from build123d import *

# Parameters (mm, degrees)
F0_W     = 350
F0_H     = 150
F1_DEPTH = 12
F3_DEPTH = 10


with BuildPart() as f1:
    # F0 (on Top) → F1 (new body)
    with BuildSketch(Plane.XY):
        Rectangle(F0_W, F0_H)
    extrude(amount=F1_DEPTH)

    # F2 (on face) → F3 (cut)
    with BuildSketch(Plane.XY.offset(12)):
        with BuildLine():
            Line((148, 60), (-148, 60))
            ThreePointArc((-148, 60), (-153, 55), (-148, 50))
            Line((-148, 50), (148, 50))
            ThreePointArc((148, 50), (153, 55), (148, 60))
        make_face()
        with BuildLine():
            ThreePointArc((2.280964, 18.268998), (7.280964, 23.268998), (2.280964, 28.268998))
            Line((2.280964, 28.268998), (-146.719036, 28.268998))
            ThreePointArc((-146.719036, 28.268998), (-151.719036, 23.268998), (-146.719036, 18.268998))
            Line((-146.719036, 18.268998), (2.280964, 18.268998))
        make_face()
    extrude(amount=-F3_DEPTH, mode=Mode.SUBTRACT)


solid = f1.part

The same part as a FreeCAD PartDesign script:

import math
import FreeCAD as App
import Part
import Sketcher
from FreeCAD import Vector

doc = App.newDocument("Part")
body = doc.addObject("PartDesign::Body", "Body")

sketch1 = doc.addObject("Sketcher::SketchObject", "Sketch")
body.addObject(sketch1)
sketch1.AttachmentSupport = (doc.XY_Plane, [""])
sketch1.MapMode = "FlatFace"
sketch1.addGeometry(Part.LineSegment(Vector(-175, 75, 0), Vector(-175, -75, 0)), False)
sketch1.addGeometry(Part.LineSegment(Vector(-175, -75, 0), Vector(175, -75, 0)), False)
sketch1.addGeometry(Part.LineSegment(Vector(175, -75, 0), Vector(175, 75, 0)), False)
sketch1.addGeometry(Part.LineSegment(Vector(175, 75, 0), Vector(-175, 75, 0)), False)
sketch1.addConstraint(Sketcher.Constraint("Coincident", 0, 2, 1, 1))
sketch1.addConstraint(Sketcher.Constraint("Coincident", 1, 2, 2, 1))
sketch1.addConstraint(Sketcher.Constraint("Coincident", 2, 2, 3, 1))
sketch1.addConstraint(Sketcher.Constraint("Coincident", 3, 2, 0, 1))
sketch1.addConstraint(Sketcher.Constraint("Vertical", 0))
sketch1.addConstraint(Sketcher.Constraint("Horizontal", 1))
sketch1.addConstraint(Sketcher.Constraint("Vertical", 2))
sketch1.addConstraint(Sketcher.Constraint("Horizontal", 3))
sketch1.addConstraint(Sketcher.Constraint("Symmetric", 0, 2, 2, 2, -1, 1))
sketch1.addConstraint(Sketcher.Constraint("DistanceX", 1, 1, 1, 2, 350.0))
sketch1.addConstraint(Sketcher.Constraint("DistanceY", 0, 2, 0, 1, 150.0))
pad1 = doc.addObject("PartDesign::Pad", "Pad")
body.addObject(pad1)
pad1.Profile = sketch1
pad1.Length = 12

sketch2 = doc.addObject("Sketcher::SketchObject", "Sketch001")
body.addObject(sketch2)
sketch2.AttachmentSupport = (doc.XY_Plane, [""])
sketch2.MapMode = "FlatFace"
sketch2.AttachmentOffset = App.Placement(Vector(0, 0, 12), App.Rotation())
sketch2.addGeometry(Part.LineSegment(Vector(148, 60, 0), Vector(-148, 60, 0)), False)
sketch2.addGeometry(Part.ArcOfCircle(Part.Circle(Vector(-148, 55, 0), Vector(0, 0, 1), 5), math.radians(90), math.radians(270)), False)
sketch2.addGeometry(Part.LineSegment(Vector(-148, 50, 0), Vector(148, 50, 0)), False)
sketch2.addGeometry(Part.ArcOfCircle(Part.Circle(Vector(148, 55, 0), Vector(0, 0, 1), 5), math.radians(-90), math.radians(90)), False)
sketch2.addGeometry(Part.ArcOfCircle(Part.Circle(Vector(2.280964, 23.268998, 0), Vector(0, 0, 1), 5), math.radians(-90), math.radians(90)), False)
sketch2.addGeometry(Part.LineSegment(Vector(2.280964, 28.268998, 0), Vector(-146.719036, 28.268998, 0)), False)
sketch2.addGeometry(Part.ArcOfCircle(Part.Circle(Vector(-146.719036, 23.268998, 0), Vector(0, 0, 1), 5), math.radians(90), math.radians(270)), False)
sketch2.addGeometry(Part.LineSegment(Vector(-146.719036, 18.268998, 0), Vector(2.280964, 18.268998, 0)), False)
sketch2.addConstraint(Sketcher.Constraint("Tangent", 0, 2, 1, 1))
sketch2.addConstraint(Sketcher.Constraint("Tangent", 1, 2, 2, 1))
sketch2.addConstraint(Sketcher.Constraint("Tangent", 2, 2, 3, 1))
sketch2.addConstraint(Sketcher.Constraint("Tangent", 3, 2, 0, 1))
sketch2.addConstraint(Sketcher.Constraint("Tangent", 4, 2, 5, 1))
sketch2.addConstraint(Sketcher.Constraint("Tangent", 5, 2, 6, 1))
sketch2.addConstraint(Sketcher.Constraint("Tangent", 6, 2, 7, 1))
sketch2.addConstraint(Sketcher.Constraint("Tangent", 7, 2, 4, 1))
sketch2.addConstraint(Sketcher.Constraint("Horizontal", 0))
sketch2.addConstraint(Sketcher.Constraint("Horizontal", 2))
sketch2.addConstraint(Sketcher.Constraint("Horizontal", 5))
sketch2.addConstraint(Sketcher.Constraint("Horizontal", 7))
sketch2.addConstraint(Sketcher.Constraint("Equal", 3, 4))
sketch2.addConstraint(Sketcher.Constraint("Radius", 1, 5.0))
sketch2.addConstraint(Sketcher.Constraint("DistanceX", 0, 2, 0, 1, 296.0))
sketch2.addConstraint(Sketcher.Constraint("DistanceX", 5, 2, 5, 1, 149.0))
sketch2.addConstraint(Sketcher.Constraint("DistanceX", 1, 3, -1, 1, 148.0))
sketch2.addConstraint(Sketcher.Constraint("DistanceY", -1, 1, 1, 3, 55.0))
sketch2.addConstraint(Sketcher.Constraint("DistanceY", -1, 1, 4, 3, 23.268998))
sketch2.addConstraint(Sketcher.Constraint("DistanceX", -1, 1, 4, 3, 2.280964))
pocket1 = doc.addObject("PartDesign::Pocket", "Pocket")
body.addObject(pocket1)
pocket1.Profile = sketch2
pocket1.Length = 10

doc.recompute()
